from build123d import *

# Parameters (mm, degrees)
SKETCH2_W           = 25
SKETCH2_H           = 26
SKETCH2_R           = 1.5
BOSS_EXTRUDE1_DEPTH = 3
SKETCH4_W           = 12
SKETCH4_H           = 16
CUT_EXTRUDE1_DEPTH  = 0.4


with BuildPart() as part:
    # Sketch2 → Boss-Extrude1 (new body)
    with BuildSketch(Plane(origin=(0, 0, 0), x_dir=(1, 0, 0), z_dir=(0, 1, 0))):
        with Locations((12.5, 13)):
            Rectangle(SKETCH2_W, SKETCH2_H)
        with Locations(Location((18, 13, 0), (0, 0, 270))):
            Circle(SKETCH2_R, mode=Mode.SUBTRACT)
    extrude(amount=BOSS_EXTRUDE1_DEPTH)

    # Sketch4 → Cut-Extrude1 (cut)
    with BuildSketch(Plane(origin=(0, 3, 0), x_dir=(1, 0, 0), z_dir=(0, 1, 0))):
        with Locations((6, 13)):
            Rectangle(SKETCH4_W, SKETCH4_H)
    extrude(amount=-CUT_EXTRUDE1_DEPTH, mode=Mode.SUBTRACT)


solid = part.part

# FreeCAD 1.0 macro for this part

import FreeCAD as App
import Part
import Sketcher
Q = App.Units.Quantity

doc = App.newDocument("Part")
body = doc.addObject("PartDesign::Body", "Body")

# Sketch on XZ plane
sketch1 = doc.addObject("Sketcher::SketchObject", "Sketch")
body.addObject(sketch1)
sketch1.AttachmentSupport = (doc.XZ_Plane, [""])
sketch1.MapMode = "FlatFace"
sketch1.addGeometry([
    Part.LineSegment(App.Vector(0, -26, 0), App.Vector(0, 0, 0)),  # 0
    Part.LineSegment(App.Vector(0, 0, 0), App.Vector(25, 0, 0)),  # 1
    Part.LineSegment(App.Vector(25, 0, 0), App.Vector(25, -26, 0)),  # 2
    Part.LineSegment(App.Vector(25, -26, 0), App.Vector(0, -26, 0)),  # 3
    Part.Circle(App.Vector(18, -13, 0), App.Vector(0, 0, 1), 1.5),  # 4
], False)
sketch1.addConstraint([
    Sketcher.Constraint("Coincident", 0, 2, 1, 1),
    Sketcher.Constraint("Coincident", 1, 2, 2, 1),
    Sketcher.Constraint("Coincident", 2, 2, 3, 1),
    Sketcher.Constraint("Coincident", 3, 2, 0, 1),
    Sketcher.Constraint("Vertical", 0),
    Sketcher.Constraint("Horizontal", 1),
    Sketcher.Constraint("Vertical", 2),
    Sketcher.Constraint("Horizontal", 3),
    Sketcher.Constraint("Coincident", 0, 2, -1, 1),
    Sketcher.Constraint("Diameter", 4, Q("3 mm")),
    Sketcher.Constraint("DistanceX", 1, 1, 1, 2, Q("25 mm")),
    Sketcher.Constraint("DistanceY", 0, 1, 0, 2, Q("26 mm")),
    Sketcher.Constraint("DistanceX", -1, 1, 4, 3, Q("18 mm")),
    Sketcher.Constraint("DistanceY", 4, 3, -1, 1, Q("13 mm")),
])
pad1 = doc.addObject("PartDesign::Pad", "Pad")
body.addObject(pad1)
pad1.Profile = sketch1
pad1.Length = 3
pad1.Reversed = True

# Sketch on XZ plane
sketch2 = doc.addObject("Sketcher::SketchObject", "Sketch001")
body.addObject(sketch2)
sketch2.AttachmentSupport = (doc.XZ_Plane, [""])
sketch2.MapMode = "FlatFace"
sketch2.AttachmentOffset = App.Placement(App.Vector(0, 0, -3), App.Rotation())
sketch2.addGeometry([
    Part.LineSegment(App.Vector(0, -21, 0), App.Vector(0, -5, 0)),
    Part.LineSegment(App.Vector(0, -5, 0), App.Vector(12, -5, 0)),
    Part.LineSegment(App.Vector(12, -5, 0), App.Vector(12, -21, 0)),
    Part.LineSegment(App.Vector(12, -21, 0), App.Vector(0, -21, 0)),
], False)
sketch2.addConstraint([
    Sketcher.Constraint("Coincident", 0, 2, 1, 1),
    Sketcher.Constraint("Coincident", 1, 2, 2, 1),
    Sketcher.Constraint("Coincident", 2, 2, 3, 1),
    Sketcher.Constraint("Coincident", 3, 2, 0, 1),
    Sketcher.Constraint("Vertical", 0),
    Sketcher.Constraint("Horizontal", 1),
    Sketcher.Constraint("Vertical", 2),
    Sketcher.Constraint("Horizontal", 3),
    Sketcher.Constraint("PointOnObject", 0, 2, -2),
    Sketcher.Constraint("DistanceX", 1, 1, 1, 2, Q("12 mm")),
    Sketcher.Constraint("DistanceY", 0, 1, 0, 2, Q("16 mm")),
    Sketcher.Constraint("DistanceY", 0, 2, -1, 1, Q("5 mm")),
])
pocket1 = doc.addObject("PartDesign::Pocket", "Pocket")
body.addObject(pocket1)
pocket1.Profile = sketch2
pocket1.Length = 0.4
pocket1.Reversed = True

doc.recompute()
